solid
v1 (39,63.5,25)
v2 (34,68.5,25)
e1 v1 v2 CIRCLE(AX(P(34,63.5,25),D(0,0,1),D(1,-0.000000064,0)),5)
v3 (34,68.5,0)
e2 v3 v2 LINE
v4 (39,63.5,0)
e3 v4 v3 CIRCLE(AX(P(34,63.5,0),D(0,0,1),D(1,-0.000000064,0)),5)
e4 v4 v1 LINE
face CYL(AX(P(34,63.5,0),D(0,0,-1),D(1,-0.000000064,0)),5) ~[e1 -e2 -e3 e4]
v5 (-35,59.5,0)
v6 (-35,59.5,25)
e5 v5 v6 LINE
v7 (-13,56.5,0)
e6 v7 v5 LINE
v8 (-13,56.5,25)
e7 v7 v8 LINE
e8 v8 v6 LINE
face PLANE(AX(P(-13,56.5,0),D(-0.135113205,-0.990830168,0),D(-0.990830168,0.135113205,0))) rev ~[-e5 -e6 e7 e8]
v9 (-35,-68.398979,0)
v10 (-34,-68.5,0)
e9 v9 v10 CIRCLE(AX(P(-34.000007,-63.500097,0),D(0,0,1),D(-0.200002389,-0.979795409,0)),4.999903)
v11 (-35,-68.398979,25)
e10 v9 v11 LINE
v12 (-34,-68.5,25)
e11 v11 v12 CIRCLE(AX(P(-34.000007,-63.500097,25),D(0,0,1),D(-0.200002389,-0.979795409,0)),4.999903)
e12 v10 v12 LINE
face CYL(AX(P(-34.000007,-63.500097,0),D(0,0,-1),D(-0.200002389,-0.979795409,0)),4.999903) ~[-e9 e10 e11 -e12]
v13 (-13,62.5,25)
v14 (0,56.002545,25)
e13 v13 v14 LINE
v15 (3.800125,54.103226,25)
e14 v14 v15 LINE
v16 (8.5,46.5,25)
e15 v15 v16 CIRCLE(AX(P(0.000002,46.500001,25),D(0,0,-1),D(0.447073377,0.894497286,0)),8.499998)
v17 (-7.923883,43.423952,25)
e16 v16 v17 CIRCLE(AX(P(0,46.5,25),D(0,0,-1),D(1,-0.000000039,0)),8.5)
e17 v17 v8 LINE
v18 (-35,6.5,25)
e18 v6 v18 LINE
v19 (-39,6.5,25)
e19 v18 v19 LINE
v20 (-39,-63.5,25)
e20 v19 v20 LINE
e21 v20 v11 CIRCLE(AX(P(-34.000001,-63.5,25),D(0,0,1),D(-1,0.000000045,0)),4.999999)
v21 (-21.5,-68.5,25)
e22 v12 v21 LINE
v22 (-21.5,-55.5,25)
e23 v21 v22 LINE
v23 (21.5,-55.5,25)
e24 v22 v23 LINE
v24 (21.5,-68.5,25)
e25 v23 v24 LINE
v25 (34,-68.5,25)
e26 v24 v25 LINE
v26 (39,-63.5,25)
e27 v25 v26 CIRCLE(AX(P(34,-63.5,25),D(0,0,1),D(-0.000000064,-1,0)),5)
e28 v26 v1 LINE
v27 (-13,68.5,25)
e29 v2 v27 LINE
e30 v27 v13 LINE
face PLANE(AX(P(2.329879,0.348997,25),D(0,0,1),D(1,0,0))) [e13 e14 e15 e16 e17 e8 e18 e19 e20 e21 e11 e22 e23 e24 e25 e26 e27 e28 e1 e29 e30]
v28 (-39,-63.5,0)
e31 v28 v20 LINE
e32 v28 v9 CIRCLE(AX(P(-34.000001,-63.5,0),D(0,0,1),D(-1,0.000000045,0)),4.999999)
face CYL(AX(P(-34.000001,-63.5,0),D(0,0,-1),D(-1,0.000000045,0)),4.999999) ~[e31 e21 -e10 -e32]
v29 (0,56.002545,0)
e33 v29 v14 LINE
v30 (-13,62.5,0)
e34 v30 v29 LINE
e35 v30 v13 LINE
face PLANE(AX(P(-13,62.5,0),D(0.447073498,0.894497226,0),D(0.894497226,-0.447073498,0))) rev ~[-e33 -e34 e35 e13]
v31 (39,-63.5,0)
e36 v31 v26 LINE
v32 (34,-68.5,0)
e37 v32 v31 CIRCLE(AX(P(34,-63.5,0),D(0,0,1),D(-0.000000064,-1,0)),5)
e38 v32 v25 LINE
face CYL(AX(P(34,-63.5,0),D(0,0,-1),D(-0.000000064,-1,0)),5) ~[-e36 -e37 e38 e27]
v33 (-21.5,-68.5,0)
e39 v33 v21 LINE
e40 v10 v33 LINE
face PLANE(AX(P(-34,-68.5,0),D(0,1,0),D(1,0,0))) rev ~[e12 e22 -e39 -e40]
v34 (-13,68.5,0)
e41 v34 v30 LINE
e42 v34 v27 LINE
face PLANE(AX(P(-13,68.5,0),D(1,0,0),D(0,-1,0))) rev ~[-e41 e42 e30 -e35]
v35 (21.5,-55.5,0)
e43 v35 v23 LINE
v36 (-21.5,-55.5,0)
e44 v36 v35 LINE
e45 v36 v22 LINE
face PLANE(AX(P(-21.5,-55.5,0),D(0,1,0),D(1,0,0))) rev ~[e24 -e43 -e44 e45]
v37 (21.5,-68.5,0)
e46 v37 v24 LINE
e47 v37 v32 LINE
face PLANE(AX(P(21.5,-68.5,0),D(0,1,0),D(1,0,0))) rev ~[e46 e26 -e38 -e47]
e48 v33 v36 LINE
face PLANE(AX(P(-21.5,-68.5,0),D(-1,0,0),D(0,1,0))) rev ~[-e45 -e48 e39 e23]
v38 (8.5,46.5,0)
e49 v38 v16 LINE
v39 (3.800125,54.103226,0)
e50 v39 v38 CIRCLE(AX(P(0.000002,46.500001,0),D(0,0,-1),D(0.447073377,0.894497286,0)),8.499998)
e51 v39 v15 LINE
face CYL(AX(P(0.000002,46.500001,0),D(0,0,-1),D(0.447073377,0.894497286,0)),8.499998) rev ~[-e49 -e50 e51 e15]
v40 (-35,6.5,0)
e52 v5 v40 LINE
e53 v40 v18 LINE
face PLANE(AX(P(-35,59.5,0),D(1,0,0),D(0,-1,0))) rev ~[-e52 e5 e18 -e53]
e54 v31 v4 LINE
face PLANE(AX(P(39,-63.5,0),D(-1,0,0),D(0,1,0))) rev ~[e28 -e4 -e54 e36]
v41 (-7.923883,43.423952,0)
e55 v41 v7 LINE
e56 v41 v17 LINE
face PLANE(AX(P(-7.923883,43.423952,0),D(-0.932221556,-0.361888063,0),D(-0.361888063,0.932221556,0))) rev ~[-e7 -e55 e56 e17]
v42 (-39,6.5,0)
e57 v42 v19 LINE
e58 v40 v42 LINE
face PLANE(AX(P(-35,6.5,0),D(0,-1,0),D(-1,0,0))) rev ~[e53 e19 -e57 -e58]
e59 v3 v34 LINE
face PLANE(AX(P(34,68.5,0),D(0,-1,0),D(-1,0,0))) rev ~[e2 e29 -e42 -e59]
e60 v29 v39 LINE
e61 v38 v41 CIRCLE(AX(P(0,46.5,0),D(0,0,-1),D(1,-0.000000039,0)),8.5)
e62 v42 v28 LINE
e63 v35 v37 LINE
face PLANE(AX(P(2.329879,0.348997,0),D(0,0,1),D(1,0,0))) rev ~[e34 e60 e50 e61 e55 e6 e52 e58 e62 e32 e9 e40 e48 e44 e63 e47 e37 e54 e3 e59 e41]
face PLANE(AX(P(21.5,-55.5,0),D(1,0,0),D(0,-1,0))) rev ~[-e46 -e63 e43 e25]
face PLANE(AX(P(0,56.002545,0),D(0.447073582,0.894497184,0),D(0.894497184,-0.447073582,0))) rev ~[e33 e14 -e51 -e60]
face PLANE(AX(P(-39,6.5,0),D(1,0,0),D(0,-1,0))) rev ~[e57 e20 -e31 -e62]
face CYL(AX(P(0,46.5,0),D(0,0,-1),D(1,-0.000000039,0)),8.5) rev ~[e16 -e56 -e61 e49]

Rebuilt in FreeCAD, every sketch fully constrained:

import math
import FreeCAD as App
import Part
import Sketcher
from FreeCAD import Vector

doc = App.newDocument("Part")
body = doc.addObject("PartDesign::Body", "Body")

# Sketch on XY plane
sketch1 = body.newObject("Sketcher::SketchObject", "Sketch")
sketch1.AttachmentSupport = (doc.getObject("XY_Plane"), [""])
sketch1.MapMode = "FlatFace"
sketch1.addGeometry(Part.LineSegment(Vector(21.5, -68.5, 0), Vector(34, -68.5, 0)), False)
sketch1.addGeometry(Part.ArcOfCircle(Part.Circle(Vector(34, -63.5, 0), Vector(0, 0, 1), 5), math.radians(-90.000004), math.radians(0.000004)), False)
sketch1.addGeometry(Part.LineSegment(Vector(39, -63.5, 0), Vector(39, 63.5, 0)), False)
sketch1.addGeometry(Part.ArcOfCircle(Part.Circle(Vector(34, 63.5, 0), Vector(0, 0, 1), 5), math.radians(-0.000004), math.radians(90.000004)), False)
sketch1.addGeometry(Part.LineSegment(Vector(34, 68.5, 0), Vector(-13, 68.5, 0)), False)
sketch1.addGeometry(Part.LineSegment(Vector(-13, 68.5, 0), Vector(-13, 62.5, 0)), False)
sketch1.addGeometry(Part.LineSegment(Vector(-13, 62.5, 0), Vector(0, 56.002545, 0)), False)
sketch1.addGeometry(Part.LineSegment(Vector(0, 56.002545, 0), Vector(3.800125, 54.103226, 0)), False)
sketch1.addGeometry(Part.ArcOfCircle(Part.Circle(Vector(0.000002, 46.500001, 0), Vector(0, 0, 1), 8.499998), math.radians(-0.000008), math.radians(63.443931)), False)
sketch1.addGeometry(Part.ArcOfCircle(Part.Circle(Vector(0, 46.5, 0), Vector(0, 0, 1), 8.5), math.radians(-158.783807), math.radians(-0.000002)), False)
sketch1.addGeometry(Part.LineSegment(Vector(-7.923883, 43.423952, 0), Vector(-13, 56.5, 0)), False)
sketch1.addGeometry(Part.LineSegment(Vector(-13, 56.5, 0), Vector(-35, 59.5, 0)), False)
sketch1.addGeometry(Part.LineSegment(Vector(-35, 59.5, 0), Vector(-35, 6.5, 0)), False)
sketch1.addGeometry(Part.LineSegment(Vector(-35, 6.5, 0), Vector(-39, 6.5, 0)), False)
sketch1.addGeometry(Part.LineSegment(Vector(-39, 6.5, 0), Vector(-39, -63.5, 0)), False)
sketch1.addGeometry(Part.ArcOfCircle(Part.Circle(Vector(-34.000001, -63.5, 0), Vector(0, 0, 1), 4.999999), math.radians(179.999997), math.radians(258.463049)), False)
sketch1.addGeometry(Part.ArcOfCircle(Part.Circle(Vector(-34.000007, -63.500097, 0), Vector(0, 0, 1), 4.999903), math.radians(-101.537099), math.radians(-89.999915)), False)
sketch1.addGeometry(Part.LineSegment(Vector(-34, -68.5, 0), Vector(-21.5, -68.5, 0)), False)
sketch1.addGeometry(Part.LineSegment(Vector(-21.5, -68.5, 0), Vector(-21.5, -55.5, 0)), False)
sketch1.addGeometry(Part.LineSegment(Vector(-21.5, -55.5, 0), Vector(21.5, -55.5, 0)), False)
sketch1.addGeometry(Part.LineSegment(Vector(21.5, -55.5, 0), Vector(21.5, -68.5, 0)), False)
sketch1.addConstraint(Sketcher.Constraint("Coincident", 0, 2, 1, 1))
sketch1.addConstraint(Sketcher.Constraint("Coincident", 1, 2, 2, 1))
sketch1.addConstraint(Sketcher.Constraint("Coincident", 2, 2, 3, 1))
sketch1.addConstraint(Sketcher.Constraint("Coincident", 3, 2, 4, 1))
sketch1.addConstraint(Sketcher.Constraint("Coincident", 4, 2, 5, 1))
sketch1.addConstraint(Sketcher.Constraint("Coincident", 5, 2, 6, 1))
sketch1.addConstraint(Sketcher.Constraint("Coincident", 6, 2, 7, 1))
sketch1.addConstraint(Sketcher.Constraint("Coincident", 7, 2, 8, 2))
sketch1.addConstraint(Sketcher.Constraint("Coincident", 8, 1, 9, 2))
sketch1.addConstraint(Sketcher.Constraint("Coincident", 9, 1, 10, 1))
sketch1.addConstraint(Sketcher.Constraint("Coincident", 10, 2, 11, 1))
sketch1.addConstraint(Sketcher.Constraint("Coincident", 11, 2, 12, 1))
sketch1.addConstraint(Sketcher.Constraint("Coincident", 12, 2, 13, 1))
sketch1.addConstraint(Sketcher.Constraint("Coincident", 13, 2, 14, 1))
sketch1.addConstraint(Sketcher.Constraint("Coincident", 14, 2, 15, 1))
sketch1.addConstraint(Sketcher.Constraint("Coincident", 15, 2, 16, 1))
sketch1.addConstraint(Sketcher.Constraint("Coincident", 16, 2, 17, 1))
sketch1.addConstraint(Sketcher.Constraint("Coincident", 17, 2, 18, 1))
sketch1.addConstraint(Sketcher.Constraint("Coincident", 18, 2, 19, 1))
sketch1.addConstraint(Sketcher.Constraint("Coincident", 19, 2, 20, 1))
sketch1.addConstraint(Sketcher.Constraint("Coincident", 20, 2, 0, 1))
sketch1.addConstraint(Sketcher.Constraint("Horizontal", 0))
sketch1.addConstraint(Sketcher.Constraint("Vertical", 2))
sketch1.addConstraint(Sketcher.Constraint("Horizontal", 4))
sketch1.addConstraint(Sketcher.Constraint("Vertical", 5))
sketch1.addConstraint(Sketcher.Constraint("Vertical", 12))
sketch1.addConstraint(Sketcher.Constraint("Horizontal", 13))
sketch1.addConstraint(Sketcher.Constraint("Vertical", 14))
sketch1.addConstraint(Sketcher.Constraint("Horizontal", 17))
sketch1.addConstraint(Sketcher.Constraint("Vertical", 18))
sketch1.addConstraint(Sketcher.Constraint("Horizontal", 19))
sketch1.addConstraint(Sketcher.Constraint("Vertical", 20))
sketch1.addConstraint(Sketcher.Constraint("Coincident", 9, 3, 8, 3))
sketch1.addConstraint(Sketcher.Constraint("PointOnObject", 9, 3, -2))
sketch1.addConstraint(Sketcher.Constraint("PointOnObject", 6, 2, -2))
sketch1.addConstraint(Sketcher.Constraint("Radius", 1, 5.0))
sketch1.addConstraint(Sketcher.Constraint("Radius", 3, 5.0))
sketch1.addConstraint(Sketcher.Constraint("Radius", 15, 4.999999))
sketch1.addConstraint(Sketcher.Constraint("Radius", 9, 8.5))
sketch1.addConstraint(Sketcher.Constraint("DistanceX", 4, 2, 4, 1, 47.0))
sketch1.addConstraint(Sketcher.Constraint("DistanceX", 13, 2, 13, 1, 4.0))
sketch1.addConstraint(Sketcher.Constraint("DistanceX", 19, 1, 19, 2, 43.0))
sketch1.addConstraint(Sketcher.Constraint("DistanceY", 2, 1, 2, 2, 127.0))
sketch1.addConstraint(Sketcher.Constraint("DistanceY", 5, 2, 5, 1, 6.0))
sketch1.addConstraint(Sketcher.Constraint("DistanceY", 12, 2, 12, 1, 53.0))
sketch1.addConstraint(Sketcher.Constraint("DistanceY", 14, 2, 14, 1, 70.0))
sketch1.addConstraint(Sketcher.Constraint("DistanceY", 18, 1, 18, 2, 13.0))
sketch1.addConstraint(Sketcher.Constraint("DistanceY", 20, 2, 20, 1, 13.0))
sketch1.addConstraint(Sketcher.Constraint("DistanceX", 0, 1, 0, 2, 12.5))
sketch1.addConstraint(Sketcher.Constraint("DistanceX", 17, 1, 17, 2, 12.5))
sketch1.addConstraint(Sketcher.Constraint("DistanceX", -1, 1, 1, 3, 34.0))
sketch1.addConstraint(Sketcher.Constraint("DistanceX", 15, 3, -1, 1, 34.000001))
sketch1.addConstraint(Sketcher.Constraint("DistanceX", -1, 1, 0, 2, 34.0))
sketch1.addConstraint(Sketcher.Constraint("DistanceX", -1, 1, 3, 2, 34.0))
sketch1.addConstraint(Sketcher.Constraint("DistanceX", 10, 2, -1, 1, 13.0))
sketch1.addConstraint(Sketcher.Constraint("DistanceX", 15, 2, -1, 1, 35.0))
sketch1.addConstraint(Sketcher.Constraint("DistanceY", 1, 3, 3, 3, 127.000001))
sketch1.addConstraint(Sketcher.Constraint("DistanceY", 8, 3, 3, 3, 16.999999))
sketch1.addConstraint(Sketcher.Constraint("DistanceY", 15, 3, 9, 3, 110.000001))
sketch1.addConstraint(Sketcher.Constraint("DistanceY", 0, 2, 1, 2, 5.0))
sketch1.addConstraint(Sketcher.Constraint("DistanceY", 8, 1, 5, 2, 16.0))
sketch1.addConstraint(Sketcher.Constraint("DistanceY", 10, 2, 5, 2, 6.0))
sketch1.addConstraint(Sketcher.Constraint("DistanceY", 11, 2, 5, 2, 3.0))
sketch1.addConstraint(Sketcher.Constraint("DistanceY", 1, 3, -1, 1, 63.5))
sketch1.addConstraint(Sketcher.Constraint("Radius", 16, 4.999903))
sketch1.addConstraint(Sketcher.Constraint("Distance", 10, 14.02676))
sketch1.addConstraint(Sketcher.Constraint("DistanceY", 7, 2, 6, 2, 1.899319))
sketch1.addConstraint(Sketcher.Constraint("DistanceX", 9, 1, 7, 2, 11.724008))
pad1 = body.newObject("PartDesign::Pad", "Pad")
pad1.Profile = sketch1
pad1.Length = 25

doc.recompute()
